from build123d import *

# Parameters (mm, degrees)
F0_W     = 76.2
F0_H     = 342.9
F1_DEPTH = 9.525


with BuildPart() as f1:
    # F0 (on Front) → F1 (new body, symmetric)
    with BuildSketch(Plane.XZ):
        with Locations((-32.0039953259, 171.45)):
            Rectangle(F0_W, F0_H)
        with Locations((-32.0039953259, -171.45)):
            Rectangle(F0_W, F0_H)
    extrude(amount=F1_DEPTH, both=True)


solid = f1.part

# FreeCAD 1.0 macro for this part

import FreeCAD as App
import Part
import Sketcher
from FreeCAD import Vector
Q = App.Units.Quantity

doc = App.newDocument("Part")
body = doc.addObject("PartDesign::Body", "Body")

# Sketch on XZ plane
sketch1 = body.newObject("Sketcher::SketchObject", "Sketch")
sketch1.AttachmentSupport = (doc.getObject("XZ_Plane"), [""])
sketch1.MapMode = "FlatFace"
sketch1.addGeometry([
    Part.LineSegment(Vector(-70, 343, 0), Vector(-70, -343, 0)),
    Part.LineSegment(Vector(-70, -343, 0), Vector(6, -343, 0)),
    Part.LineSegment(Vector(6, -343, 0), Vector(6, 343, 0)),
    Part.LineSegment(Vector(6, 343, 0), Vector(-70, 343, 0)),
], False)
sketch1.addConstraint([
    Sketcher.Constraint("Coincident", 0, 2, 1, 1),
    Sketcher.Constraint("Coincident", 1, 2, 2, 1),
    Sketcher.Constraint("Coincident", 2, 2, 3, 1),
    Sketcher.Constraint("Coincident", 3, 2, 0, 1),
    Sketcher.Constraint("Vertical", 0),
    Sketcher.Constraint("Horizontal", 1),
    Sketcher.Constraint("Vertical", 2),
    Sketcher.Constraint("Horizontal", 3),
    Sketcher.Constraint("DistanceX", 1, 1, 1, 2, Q("3 in")),
    Sketcher.Constraint("DistanceY", 0, 2, 0, 1, Q("27 in")),
    Sketcher.Constraint("DistanceY", 0, 2, -1, 1, Q("13.5 in")),
    Sketcher.Constraint("DistanceX", 0, 2, -1, 1, Q("2.7599998 in")),
])
pad1 = body.newObject("PartDesign::Pad", "Pad")
pad1.Profile = sketch1
pad1.Length = Q("0.75 in")
pad1.Midplane = True

doc.recompute()
